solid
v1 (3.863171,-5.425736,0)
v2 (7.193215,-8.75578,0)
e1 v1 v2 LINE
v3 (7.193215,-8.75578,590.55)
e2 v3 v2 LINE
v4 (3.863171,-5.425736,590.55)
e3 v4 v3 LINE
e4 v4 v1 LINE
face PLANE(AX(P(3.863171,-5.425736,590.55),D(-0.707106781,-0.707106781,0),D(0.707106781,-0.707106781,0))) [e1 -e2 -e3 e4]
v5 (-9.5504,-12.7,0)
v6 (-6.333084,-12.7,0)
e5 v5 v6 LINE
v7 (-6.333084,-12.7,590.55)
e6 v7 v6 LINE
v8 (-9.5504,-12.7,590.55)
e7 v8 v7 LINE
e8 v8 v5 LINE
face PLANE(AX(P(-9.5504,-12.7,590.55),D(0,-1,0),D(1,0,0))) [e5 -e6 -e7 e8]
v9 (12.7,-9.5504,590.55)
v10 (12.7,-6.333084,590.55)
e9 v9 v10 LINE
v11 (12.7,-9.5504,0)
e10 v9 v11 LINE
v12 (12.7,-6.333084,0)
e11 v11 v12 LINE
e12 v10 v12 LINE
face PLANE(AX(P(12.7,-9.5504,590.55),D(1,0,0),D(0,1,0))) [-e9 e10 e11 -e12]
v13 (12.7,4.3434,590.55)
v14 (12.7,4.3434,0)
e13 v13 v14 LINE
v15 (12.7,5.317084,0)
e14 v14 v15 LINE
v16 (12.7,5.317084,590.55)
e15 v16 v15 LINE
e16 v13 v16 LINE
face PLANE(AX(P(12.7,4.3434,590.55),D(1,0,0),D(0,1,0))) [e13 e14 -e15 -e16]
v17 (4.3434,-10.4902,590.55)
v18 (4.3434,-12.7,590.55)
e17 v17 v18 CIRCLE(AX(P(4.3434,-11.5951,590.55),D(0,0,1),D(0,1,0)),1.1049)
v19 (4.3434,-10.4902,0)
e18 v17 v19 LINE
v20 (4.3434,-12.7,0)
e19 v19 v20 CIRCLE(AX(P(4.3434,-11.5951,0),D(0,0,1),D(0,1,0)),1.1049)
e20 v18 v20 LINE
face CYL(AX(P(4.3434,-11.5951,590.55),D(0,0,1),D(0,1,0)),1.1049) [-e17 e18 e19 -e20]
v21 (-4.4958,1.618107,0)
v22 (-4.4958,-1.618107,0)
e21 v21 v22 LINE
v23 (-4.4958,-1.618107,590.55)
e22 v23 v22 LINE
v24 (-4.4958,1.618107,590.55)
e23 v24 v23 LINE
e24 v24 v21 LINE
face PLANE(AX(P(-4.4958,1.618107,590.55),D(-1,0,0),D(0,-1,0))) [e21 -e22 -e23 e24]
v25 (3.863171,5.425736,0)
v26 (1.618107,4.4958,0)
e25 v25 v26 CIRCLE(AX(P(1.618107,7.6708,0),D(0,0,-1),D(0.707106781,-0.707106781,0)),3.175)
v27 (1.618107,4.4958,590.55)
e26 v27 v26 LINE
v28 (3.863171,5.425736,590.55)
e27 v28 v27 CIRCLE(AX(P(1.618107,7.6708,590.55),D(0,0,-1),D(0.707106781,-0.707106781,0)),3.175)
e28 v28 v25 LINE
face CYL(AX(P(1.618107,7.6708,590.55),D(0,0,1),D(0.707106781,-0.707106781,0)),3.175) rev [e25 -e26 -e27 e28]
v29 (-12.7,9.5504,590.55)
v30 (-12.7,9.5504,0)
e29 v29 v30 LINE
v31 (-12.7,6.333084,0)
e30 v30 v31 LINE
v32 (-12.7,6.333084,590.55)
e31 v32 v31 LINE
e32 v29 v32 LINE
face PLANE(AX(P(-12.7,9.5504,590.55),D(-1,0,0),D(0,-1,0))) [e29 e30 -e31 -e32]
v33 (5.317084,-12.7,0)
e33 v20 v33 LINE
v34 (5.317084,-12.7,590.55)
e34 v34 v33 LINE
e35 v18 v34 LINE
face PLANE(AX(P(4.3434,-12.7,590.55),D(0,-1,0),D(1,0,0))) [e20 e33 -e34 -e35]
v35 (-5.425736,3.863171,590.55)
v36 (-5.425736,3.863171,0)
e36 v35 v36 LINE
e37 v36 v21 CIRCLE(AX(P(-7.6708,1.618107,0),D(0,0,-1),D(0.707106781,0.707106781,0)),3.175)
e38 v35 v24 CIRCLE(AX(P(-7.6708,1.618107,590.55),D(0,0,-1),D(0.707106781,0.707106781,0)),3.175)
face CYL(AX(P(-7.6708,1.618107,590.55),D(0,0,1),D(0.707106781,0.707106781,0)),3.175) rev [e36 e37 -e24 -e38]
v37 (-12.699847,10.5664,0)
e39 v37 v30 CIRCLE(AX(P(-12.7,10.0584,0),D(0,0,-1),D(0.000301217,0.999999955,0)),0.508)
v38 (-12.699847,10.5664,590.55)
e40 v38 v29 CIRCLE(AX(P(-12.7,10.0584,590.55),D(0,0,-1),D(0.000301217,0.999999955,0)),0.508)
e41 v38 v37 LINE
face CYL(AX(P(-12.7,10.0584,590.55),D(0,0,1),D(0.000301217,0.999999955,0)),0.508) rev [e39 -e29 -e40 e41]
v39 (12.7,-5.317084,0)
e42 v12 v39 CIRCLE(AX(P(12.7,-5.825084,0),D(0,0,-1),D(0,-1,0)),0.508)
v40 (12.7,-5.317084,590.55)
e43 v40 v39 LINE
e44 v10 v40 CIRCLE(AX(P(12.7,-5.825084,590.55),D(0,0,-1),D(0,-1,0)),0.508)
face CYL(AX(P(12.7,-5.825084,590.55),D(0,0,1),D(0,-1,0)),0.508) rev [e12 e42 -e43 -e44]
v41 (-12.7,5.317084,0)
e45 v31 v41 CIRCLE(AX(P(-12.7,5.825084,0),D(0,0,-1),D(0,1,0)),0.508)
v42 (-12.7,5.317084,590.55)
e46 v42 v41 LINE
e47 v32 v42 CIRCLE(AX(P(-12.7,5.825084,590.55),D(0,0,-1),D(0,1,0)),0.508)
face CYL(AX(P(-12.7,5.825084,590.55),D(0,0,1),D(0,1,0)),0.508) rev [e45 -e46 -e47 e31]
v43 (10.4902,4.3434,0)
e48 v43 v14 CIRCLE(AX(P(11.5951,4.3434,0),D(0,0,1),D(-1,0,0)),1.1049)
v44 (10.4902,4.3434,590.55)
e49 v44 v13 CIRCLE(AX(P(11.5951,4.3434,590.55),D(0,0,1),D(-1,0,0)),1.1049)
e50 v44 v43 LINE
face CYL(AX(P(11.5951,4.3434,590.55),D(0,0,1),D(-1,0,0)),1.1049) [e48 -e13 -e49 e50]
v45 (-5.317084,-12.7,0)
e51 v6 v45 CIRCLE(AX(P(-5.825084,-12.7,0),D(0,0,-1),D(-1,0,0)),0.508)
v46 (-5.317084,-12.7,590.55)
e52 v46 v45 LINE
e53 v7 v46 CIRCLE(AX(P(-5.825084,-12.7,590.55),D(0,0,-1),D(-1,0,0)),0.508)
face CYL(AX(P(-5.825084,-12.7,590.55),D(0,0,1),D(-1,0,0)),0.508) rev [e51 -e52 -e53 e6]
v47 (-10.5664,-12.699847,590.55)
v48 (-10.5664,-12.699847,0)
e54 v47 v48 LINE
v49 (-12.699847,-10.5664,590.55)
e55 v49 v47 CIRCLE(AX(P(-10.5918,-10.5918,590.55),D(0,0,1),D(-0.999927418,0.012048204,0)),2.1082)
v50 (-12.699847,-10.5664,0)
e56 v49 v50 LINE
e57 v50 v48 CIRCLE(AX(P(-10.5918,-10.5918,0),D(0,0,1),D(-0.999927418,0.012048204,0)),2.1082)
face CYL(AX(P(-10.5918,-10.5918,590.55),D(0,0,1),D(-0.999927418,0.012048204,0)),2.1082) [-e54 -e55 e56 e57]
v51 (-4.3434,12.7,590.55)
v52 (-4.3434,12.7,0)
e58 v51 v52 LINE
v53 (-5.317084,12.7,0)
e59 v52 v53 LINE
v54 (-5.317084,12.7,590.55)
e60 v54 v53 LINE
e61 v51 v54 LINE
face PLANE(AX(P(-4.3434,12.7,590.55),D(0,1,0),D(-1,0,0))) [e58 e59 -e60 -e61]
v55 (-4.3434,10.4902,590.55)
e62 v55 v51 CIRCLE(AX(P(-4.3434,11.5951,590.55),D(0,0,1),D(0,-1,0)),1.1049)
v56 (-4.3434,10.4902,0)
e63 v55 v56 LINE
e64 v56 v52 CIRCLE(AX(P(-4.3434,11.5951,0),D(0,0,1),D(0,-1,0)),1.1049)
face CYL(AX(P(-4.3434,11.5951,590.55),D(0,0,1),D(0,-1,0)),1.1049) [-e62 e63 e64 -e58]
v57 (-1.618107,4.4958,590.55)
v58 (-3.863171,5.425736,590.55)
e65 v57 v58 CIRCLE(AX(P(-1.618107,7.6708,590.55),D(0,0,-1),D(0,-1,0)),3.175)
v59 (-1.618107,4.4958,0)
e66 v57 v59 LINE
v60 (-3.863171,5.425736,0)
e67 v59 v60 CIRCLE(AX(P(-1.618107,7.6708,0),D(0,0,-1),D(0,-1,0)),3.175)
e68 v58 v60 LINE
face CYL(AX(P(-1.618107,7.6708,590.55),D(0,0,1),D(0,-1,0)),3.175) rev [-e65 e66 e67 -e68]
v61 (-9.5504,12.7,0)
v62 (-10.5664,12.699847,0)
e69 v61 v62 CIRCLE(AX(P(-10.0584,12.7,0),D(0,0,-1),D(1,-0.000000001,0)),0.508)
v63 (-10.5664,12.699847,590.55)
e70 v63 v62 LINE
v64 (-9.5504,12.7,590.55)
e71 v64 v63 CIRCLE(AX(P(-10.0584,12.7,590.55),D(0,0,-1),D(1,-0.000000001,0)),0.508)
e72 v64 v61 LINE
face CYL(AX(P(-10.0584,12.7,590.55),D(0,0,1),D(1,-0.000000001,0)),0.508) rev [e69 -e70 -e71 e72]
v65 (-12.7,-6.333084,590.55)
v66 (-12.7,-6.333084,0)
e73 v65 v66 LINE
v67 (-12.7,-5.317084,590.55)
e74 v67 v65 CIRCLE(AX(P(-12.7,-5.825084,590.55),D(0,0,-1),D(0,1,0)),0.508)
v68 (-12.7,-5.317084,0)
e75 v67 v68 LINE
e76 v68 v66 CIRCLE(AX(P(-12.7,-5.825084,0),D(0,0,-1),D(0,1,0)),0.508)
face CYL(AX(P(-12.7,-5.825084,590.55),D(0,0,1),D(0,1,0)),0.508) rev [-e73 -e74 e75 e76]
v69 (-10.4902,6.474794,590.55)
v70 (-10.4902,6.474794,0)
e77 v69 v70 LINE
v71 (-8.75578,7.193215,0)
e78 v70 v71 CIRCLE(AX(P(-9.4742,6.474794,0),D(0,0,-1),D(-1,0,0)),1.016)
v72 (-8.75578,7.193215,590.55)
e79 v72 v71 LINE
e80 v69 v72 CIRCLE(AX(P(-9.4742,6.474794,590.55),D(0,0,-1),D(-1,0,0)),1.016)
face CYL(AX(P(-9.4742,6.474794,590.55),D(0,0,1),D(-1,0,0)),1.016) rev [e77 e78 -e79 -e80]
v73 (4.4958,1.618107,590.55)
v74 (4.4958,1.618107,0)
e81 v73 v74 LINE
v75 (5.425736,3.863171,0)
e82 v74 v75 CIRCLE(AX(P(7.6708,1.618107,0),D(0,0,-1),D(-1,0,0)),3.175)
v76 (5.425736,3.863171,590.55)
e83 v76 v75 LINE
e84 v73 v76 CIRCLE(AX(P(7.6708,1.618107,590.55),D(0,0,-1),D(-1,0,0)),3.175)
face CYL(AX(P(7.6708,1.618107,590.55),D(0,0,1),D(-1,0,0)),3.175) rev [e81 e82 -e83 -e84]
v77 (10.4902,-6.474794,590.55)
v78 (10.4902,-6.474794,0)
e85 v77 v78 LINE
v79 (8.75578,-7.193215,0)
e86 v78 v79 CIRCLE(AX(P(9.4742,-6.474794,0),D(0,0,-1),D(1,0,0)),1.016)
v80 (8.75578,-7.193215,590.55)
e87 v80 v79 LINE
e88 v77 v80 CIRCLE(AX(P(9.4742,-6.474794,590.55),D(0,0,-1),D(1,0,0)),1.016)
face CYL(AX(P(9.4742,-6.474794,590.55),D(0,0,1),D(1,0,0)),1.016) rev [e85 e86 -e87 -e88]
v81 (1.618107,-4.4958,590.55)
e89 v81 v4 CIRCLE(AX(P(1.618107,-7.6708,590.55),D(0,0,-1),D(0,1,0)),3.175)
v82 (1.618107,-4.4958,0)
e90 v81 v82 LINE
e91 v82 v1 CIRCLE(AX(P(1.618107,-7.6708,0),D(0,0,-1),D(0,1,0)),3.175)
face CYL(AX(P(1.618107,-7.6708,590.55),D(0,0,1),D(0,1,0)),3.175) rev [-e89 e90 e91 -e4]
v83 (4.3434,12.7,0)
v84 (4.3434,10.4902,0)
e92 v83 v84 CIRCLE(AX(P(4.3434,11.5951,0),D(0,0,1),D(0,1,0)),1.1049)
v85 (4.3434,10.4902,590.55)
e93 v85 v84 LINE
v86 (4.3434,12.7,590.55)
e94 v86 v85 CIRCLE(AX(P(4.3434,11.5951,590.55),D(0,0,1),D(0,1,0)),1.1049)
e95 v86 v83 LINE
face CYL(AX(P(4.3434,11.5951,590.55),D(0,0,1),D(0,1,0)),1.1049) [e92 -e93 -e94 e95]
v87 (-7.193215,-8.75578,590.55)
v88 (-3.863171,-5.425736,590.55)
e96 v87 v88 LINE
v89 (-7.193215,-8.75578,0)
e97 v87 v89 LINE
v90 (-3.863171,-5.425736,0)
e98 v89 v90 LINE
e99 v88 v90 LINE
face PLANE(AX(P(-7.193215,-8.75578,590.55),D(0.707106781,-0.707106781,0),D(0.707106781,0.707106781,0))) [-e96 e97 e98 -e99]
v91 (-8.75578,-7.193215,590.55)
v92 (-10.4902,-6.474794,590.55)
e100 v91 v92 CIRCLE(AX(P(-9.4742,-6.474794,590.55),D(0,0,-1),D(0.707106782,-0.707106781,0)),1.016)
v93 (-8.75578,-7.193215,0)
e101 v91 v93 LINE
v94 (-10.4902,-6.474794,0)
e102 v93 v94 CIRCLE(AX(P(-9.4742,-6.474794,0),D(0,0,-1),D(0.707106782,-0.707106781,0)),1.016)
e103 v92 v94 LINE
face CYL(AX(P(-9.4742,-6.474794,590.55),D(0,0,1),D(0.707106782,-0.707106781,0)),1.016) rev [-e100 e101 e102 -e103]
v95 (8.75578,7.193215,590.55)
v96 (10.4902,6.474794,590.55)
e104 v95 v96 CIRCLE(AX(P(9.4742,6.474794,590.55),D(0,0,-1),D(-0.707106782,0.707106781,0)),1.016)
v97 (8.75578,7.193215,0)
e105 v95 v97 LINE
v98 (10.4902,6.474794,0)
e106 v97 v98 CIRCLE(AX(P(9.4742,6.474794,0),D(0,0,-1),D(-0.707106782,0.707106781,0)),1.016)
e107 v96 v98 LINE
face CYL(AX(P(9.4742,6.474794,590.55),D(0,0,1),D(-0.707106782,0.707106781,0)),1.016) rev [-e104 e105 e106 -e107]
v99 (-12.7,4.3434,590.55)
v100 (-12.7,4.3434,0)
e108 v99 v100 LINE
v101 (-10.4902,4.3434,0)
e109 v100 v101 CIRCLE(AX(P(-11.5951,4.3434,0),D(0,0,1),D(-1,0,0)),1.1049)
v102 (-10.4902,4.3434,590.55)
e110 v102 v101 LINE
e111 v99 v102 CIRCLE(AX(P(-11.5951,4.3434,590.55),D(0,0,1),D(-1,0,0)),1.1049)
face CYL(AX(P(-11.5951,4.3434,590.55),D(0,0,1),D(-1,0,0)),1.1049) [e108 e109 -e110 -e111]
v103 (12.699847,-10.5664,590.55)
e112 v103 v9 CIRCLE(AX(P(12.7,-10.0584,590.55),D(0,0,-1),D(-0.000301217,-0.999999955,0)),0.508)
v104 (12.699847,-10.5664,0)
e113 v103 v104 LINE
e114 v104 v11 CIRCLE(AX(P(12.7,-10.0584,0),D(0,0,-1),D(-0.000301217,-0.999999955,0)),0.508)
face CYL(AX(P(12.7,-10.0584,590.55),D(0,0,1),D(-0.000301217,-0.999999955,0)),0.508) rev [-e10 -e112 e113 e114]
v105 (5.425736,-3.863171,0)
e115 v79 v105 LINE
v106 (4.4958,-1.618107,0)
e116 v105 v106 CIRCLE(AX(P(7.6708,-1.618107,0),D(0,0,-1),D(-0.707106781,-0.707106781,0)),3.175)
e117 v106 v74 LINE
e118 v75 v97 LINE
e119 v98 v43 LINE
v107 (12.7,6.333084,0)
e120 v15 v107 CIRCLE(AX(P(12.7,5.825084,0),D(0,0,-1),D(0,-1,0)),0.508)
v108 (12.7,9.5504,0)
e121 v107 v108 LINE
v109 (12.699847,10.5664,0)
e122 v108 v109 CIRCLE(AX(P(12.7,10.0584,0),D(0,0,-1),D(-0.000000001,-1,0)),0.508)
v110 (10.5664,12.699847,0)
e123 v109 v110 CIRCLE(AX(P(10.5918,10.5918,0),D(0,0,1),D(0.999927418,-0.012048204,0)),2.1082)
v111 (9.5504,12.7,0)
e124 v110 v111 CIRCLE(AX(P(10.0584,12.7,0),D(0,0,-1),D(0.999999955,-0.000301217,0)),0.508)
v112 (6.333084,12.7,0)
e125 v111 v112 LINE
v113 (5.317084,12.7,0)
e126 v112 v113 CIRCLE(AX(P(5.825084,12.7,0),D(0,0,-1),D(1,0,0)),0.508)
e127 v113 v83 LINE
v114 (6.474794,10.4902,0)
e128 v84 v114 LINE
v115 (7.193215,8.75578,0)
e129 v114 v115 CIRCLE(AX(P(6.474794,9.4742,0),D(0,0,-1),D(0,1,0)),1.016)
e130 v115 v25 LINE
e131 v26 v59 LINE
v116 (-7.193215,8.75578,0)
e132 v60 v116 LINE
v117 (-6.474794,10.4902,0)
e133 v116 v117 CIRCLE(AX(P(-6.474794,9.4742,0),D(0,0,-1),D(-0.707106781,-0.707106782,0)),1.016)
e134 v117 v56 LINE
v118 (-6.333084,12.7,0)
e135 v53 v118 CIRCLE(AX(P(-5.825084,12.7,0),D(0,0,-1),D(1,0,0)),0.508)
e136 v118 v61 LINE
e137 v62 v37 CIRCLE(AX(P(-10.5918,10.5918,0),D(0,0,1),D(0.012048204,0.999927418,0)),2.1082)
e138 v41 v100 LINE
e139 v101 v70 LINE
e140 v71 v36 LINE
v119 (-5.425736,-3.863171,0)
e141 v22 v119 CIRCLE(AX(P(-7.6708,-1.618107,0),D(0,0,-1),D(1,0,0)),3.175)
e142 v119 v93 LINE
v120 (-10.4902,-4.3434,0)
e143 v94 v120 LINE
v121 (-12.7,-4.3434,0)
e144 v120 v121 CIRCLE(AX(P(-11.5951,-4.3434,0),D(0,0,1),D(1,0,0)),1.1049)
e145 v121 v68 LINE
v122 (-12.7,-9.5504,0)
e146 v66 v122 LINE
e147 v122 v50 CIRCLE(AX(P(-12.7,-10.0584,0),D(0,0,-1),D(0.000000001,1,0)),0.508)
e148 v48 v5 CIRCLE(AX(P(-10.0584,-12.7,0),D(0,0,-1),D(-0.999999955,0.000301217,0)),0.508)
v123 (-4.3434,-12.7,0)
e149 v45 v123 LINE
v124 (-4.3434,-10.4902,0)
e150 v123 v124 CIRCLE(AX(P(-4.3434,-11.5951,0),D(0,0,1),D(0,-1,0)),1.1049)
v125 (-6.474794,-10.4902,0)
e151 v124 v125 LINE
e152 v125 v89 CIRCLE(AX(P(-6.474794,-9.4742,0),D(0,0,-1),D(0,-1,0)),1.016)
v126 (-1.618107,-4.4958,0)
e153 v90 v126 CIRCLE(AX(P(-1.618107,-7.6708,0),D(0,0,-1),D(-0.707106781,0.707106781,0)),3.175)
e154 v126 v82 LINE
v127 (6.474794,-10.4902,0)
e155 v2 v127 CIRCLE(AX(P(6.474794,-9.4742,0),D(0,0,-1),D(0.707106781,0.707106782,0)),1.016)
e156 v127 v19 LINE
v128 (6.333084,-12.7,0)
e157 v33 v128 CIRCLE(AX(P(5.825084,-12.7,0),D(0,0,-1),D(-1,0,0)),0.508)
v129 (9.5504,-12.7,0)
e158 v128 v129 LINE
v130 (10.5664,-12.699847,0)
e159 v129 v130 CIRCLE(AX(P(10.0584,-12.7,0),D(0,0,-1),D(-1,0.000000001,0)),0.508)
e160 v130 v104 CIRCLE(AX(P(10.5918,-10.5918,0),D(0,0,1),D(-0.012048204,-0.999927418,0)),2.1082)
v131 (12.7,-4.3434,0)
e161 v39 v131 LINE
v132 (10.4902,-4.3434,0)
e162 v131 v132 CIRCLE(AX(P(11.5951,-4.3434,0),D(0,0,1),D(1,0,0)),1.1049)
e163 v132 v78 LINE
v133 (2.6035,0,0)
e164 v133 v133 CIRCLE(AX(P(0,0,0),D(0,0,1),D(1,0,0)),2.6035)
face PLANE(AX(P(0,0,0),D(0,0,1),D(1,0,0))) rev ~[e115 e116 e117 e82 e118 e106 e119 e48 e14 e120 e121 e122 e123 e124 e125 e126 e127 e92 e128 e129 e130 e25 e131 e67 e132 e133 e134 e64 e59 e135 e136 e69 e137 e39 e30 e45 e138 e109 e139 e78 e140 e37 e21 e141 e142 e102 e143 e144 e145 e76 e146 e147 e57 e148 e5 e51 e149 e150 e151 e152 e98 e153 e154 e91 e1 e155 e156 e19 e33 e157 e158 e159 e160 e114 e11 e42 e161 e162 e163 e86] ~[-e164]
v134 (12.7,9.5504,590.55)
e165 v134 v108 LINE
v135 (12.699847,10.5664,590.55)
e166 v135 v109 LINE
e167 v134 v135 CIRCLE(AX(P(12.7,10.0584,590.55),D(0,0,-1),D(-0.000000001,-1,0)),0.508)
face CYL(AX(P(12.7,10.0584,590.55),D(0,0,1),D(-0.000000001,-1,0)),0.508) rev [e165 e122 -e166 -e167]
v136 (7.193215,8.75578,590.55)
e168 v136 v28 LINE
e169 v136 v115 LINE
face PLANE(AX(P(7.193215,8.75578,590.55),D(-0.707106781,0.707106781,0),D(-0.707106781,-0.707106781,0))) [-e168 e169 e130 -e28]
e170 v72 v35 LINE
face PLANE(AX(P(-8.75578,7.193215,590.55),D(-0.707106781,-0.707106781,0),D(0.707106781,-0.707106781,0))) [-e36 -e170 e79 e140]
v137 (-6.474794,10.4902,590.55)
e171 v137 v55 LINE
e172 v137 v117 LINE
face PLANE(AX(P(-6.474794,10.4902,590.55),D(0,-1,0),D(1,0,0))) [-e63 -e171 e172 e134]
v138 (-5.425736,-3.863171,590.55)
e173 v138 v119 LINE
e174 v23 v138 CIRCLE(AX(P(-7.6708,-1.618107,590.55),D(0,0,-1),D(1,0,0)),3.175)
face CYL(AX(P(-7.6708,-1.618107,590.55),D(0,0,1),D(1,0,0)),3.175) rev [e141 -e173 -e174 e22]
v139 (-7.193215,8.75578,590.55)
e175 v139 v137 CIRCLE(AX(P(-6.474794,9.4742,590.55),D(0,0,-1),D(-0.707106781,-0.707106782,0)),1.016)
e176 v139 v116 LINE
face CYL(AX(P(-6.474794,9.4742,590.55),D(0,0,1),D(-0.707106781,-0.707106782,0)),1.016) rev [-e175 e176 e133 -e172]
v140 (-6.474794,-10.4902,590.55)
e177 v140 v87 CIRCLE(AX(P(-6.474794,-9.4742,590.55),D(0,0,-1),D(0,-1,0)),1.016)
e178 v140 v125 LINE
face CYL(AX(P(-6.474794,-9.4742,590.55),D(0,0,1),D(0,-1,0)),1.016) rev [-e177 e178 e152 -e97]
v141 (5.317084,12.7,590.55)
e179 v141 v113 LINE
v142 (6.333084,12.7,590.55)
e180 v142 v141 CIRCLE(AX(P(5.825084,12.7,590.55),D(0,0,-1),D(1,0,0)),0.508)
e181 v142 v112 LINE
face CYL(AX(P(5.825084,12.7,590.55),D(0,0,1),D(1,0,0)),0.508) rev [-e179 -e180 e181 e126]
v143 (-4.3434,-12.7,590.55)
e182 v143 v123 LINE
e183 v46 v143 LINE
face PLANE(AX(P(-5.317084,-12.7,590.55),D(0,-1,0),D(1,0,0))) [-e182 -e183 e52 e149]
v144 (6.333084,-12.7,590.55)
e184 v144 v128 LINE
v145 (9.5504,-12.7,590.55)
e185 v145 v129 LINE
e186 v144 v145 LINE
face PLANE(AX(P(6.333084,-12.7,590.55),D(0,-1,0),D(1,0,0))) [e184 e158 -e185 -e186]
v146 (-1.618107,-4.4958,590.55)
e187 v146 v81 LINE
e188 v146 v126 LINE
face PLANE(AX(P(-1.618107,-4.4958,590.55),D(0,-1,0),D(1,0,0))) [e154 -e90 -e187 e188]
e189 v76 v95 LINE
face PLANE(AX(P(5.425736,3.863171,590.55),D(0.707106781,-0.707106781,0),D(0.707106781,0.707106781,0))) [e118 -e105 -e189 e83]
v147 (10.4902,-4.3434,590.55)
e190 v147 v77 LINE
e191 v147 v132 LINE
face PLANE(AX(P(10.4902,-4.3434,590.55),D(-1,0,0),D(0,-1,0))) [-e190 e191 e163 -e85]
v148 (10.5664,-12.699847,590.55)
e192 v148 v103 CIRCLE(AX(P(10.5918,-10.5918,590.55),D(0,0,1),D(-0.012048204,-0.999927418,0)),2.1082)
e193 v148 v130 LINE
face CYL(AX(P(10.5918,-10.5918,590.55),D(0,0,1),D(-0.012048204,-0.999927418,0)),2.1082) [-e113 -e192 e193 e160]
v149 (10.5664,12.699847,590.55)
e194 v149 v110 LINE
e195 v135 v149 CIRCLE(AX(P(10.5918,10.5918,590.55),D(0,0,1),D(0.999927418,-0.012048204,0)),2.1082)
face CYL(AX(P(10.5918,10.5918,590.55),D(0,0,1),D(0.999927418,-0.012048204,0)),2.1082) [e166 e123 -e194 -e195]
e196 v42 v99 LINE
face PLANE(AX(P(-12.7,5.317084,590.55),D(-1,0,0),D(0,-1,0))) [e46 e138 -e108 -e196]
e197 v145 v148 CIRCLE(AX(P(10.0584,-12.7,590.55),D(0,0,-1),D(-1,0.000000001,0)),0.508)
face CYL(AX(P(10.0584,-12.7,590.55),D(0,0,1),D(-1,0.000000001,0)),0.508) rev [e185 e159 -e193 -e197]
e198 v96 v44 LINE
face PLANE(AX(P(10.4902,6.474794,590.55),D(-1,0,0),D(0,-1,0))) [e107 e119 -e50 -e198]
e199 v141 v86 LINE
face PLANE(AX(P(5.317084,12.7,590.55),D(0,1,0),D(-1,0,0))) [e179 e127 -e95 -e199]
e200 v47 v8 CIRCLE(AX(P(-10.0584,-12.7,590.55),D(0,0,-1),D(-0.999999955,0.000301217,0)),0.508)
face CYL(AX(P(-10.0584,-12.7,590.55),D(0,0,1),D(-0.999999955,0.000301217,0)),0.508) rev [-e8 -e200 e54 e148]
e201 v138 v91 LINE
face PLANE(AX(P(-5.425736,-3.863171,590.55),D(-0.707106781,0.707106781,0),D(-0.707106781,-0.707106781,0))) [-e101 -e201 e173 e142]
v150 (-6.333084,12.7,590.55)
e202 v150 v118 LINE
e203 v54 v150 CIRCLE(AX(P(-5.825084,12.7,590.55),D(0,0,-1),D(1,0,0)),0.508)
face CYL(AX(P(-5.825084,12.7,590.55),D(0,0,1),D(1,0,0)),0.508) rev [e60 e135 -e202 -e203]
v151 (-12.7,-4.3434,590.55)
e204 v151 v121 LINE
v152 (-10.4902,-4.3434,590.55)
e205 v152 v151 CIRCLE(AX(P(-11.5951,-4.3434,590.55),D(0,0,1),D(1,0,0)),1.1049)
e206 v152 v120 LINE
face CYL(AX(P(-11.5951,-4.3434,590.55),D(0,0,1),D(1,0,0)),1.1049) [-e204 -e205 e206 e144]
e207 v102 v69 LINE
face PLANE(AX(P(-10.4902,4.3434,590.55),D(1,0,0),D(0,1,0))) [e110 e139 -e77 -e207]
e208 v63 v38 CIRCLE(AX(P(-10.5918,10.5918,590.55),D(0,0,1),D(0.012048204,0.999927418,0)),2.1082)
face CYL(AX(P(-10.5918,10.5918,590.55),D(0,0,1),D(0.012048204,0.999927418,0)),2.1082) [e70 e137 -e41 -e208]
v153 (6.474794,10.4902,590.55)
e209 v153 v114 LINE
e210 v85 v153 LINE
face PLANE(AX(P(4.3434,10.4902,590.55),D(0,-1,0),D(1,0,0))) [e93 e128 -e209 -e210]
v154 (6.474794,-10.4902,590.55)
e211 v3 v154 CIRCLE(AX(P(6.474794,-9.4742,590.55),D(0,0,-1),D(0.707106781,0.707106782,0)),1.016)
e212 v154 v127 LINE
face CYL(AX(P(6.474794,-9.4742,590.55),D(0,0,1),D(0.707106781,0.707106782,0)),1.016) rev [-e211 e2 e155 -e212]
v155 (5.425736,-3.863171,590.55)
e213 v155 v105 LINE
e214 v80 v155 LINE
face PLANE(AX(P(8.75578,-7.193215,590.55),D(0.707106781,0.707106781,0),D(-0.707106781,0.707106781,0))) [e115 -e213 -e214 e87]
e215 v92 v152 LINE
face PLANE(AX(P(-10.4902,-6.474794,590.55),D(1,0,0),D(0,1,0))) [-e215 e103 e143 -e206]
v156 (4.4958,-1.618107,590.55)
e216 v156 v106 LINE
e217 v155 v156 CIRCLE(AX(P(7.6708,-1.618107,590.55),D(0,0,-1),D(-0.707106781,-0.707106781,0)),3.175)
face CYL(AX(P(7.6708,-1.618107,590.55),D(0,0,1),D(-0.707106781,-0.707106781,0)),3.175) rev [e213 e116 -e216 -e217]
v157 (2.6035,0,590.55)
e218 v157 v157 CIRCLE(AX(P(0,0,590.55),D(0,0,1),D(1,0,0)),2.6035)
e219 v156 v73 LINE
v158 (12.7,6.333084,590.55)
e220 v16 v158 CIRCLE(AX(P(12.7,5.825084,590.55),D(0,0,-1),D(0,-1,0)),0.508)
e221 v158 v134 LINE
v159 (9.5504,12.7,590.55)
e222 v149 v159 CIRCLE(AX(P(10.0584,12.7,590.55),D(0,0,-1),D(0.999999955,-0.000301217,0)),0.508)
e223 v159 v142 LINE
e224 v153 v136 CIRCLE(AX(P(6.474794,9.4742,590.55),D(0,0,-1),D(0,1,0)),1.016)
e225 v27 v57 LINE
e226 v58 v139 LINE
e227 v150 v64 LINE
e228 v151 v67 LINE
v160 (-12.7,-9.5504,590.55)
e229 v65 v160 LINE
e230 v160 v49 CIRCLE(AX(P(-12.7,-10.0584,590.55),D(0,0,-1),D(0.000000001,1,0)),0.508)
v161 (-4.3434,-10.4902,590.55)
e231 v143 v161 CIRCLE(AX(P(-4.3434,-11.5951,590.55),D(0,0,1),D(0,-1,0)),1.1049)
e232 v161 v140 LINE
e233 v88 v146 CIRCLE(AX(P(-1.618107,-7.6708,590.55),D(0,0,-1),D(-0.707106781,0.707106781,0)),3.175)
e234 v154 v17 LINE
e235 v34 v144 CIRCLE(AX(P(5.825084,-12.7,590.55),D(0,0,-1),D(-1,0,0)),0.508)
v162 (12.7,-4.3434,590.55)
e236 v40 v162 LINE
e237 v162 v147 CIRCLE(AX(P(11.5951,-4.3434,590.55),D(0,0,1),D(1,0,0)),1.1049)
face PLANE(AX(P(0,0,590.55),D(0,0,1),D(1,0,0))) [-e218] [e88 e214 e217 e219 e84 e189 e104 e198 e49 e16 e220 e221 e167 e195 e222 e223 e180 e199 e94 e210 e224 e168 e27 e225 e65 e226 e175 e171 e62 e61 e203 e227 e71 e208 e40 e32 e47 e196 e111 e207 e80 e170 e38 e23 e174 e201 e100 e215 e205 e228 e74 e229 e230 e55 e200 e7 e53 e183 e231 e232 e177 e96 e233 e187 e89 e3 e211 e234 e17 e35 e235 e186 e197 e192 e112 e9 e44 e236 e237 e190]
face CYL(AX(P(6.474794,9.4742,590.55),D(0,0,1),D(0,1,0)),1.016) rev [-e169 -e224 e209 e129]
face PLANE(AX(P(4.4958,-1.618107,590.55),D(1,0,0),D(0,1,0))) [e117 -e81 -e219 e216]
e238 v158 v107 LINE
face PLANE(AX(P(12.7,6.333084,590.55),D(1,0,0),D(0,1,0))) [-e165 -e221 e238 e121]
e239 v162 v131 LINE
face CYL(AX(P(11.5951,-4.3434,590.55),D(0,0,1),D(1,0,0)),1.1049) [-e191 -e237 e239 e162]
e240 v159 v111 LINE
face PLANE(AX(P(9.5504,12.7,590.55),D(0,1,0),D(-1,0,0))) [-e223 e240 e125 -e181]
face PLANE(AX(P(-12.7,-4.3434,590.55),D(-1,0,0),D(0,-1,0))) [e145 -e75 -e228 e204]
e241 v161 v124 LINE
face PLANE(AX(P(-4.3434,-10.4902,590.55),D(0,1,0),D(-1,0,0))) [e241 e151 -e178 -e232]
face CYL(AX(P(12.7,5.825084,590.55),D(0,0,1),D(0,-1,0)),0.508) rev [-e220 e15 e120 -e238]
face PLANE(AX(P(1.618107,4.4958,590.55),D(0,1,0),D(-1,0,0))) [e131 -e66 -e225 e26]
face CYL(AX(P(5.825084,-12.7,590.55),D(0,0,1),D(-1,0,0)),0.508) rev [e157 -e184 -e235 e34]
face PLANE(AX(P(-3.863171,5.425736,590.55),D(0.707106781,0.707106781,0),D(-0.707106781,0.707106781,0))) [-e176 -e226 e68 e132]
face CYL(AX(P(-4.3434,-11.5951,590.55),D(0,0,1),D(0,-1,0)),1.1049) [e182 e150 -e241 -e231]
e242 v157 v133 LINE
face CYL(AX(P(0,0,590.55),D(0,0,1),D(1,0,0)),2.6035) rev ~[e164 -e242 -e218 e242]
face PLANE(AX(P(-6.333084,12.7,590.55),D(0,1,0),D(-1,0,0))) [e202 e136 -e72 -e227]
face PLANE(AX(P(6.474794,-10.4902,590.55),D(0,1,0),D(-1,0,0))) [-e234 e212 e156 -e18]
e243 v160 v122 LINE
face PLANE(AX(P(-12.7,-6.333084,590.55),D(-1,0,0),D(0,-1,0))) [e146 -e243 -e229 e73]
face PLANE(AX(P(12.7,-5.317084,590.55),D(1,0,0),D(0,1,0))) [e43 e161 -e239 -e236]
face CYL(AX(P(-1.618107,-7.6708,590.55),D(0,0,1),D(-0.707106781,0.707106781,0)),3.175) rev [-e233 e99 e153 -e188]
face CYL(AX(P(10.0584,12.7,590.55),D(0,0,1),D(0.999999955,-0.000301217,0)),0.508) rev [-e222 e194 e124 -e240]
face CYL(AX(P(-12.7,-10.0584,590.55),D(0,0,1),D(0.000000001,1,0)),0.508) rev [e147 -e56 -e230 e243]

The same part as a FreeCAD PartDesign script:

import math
import FreeCAD as App
import Part
import Sketcher
Q = App.Units.Quantity

doc = App.newDocument("Part")
body = doc.addObject("PartDesign::Body", "Body")

# Sketch on XY plane
sketch1 = body.newObject("Sketcher::SketchObject", "Sketch")
sketch1.AttachmentSupport = (doc.getObject("XY_Plane"), [""])
sketch1.MapMode = "FlatFace"
sketch1.AttachmentOffset = App.Placement(App.Vector(0, 0, 23.25 * 25.4), App.Rotation())
sketch1.addGeometry(Part.LineSegment(App.Vector(-12.7, -6.3, 0), App.Vector(-12.7, -9.6, 0)), False)
sketch1.addGeometry(Part.ArcOfCircle(Part.Circle(App.Vector(-12.7, -10.1, 0), App.Vector(0, 0, 1), 0.5), math.radians(-90), math.radians(90)), False)
sketch1.addGeometry(Part.ArcOfCircle(Part.Circle(App.Vector(-10.6, -10.6, 0), App.Vector(0, 0, 1), 2.1), math.radians(179), math.radians(271)), False)
sketch1.addGeometry(Part.ArcOfCircle(Part.Circle(App.Vector(-10.1, -12.7, 0), App.Vector(0, 0, 1), 0.5), math.radians(0), math.radians(180)), False)
sketch1.addGeometry(Part.LineSegment(App.Vector(-9.6, -12.7, 0), App.Vector(-6.3, -12.7, 0)), False)
sketch1.addGeometry(Part.ArcOfCircle(Part.Circle(App.Vector(-5.8, -12.7, 0), App.Vector(0, 0, 1), 0.5), math.radians(0), math.radians(180)), False)
sketch1.addGeometry(Part.LineSegment(App.Vector(-5.3, -12.7, 0), App.Vector(-4.3, -12.7, 0)), False)
sketch1.addGeometry(Part.ArcOfCircle(Part.Circle(App.Vector(-4.3, -11.6, 0), App.Vector(0, 0, 1), 1.1), math.radians(-90), math.radians(90)), False)
sketch1.addGeometry(Part.LineSegment(App.Vector(-4.3, -10.5, 0), App.Vector(-6.5, -10.5, 0)), False)
sketch1.addGeometry(Part.ArcOfCircle(Part.Circle(App.Vector(-6.5, -9.5, 0), App.Vector(0, 0, 1), 1), math.radians(135), math.radians(270)), False)
sketch1.addGeometry(Part.LineSegment(App.Vector(-7.2, -8.8, 0), App.Vector(-3.9, -5.4, 0)), False)
sketch1.addGeometry(Part.ArcOfCircle(Part.Circle(App.Vector(-1.6, -7.7, 0), App.Vector(0, 0, 1), 3.2), math.radians(90), math.radians(135)), False)
sketch1.addGeometry(Part.LineSegment(App.Vector(-1.6, -4.5, 0), App.Vector(1.6, -4.5, 0)), False)
sketch1.addGeometry(Part.ArcOfCircle(Part.Circle(App.Vector(1.6, -7.7, 0), App.Vector(0, 0, 1), 3.2), math.radians(45), math.radians(90)), False)
sketch1.addGeometry(Part.LineSegment(App.Vector(3.9, -5.4, 0), App.Vector(7.2, -8.8, 0)), False)
sketch1.addGeometry(Part.ArcOfCircle(Part.Circle(App.Vector(6.5, -9.5, 0), App.Vector(0, 0, 1), 1), math.radians(-90), math.radians(45)), False)
sketch1.addGeometry(Part.LineSegment(App.Vector(6.5, -10.5, 0), App.Vector(4.3, -10.5, 0)), False)
sketch1.addGeometry(Part.ArcOfCircle(Part.Circle(App.Vector(4.3, -11.6, 0), App.Vector(0, 0, 1), 1.1), math.radians(90), math.radians(270)), False)
sketch1.addGeometry(Part.LineSegment(App.Vector(4.3, -12.7, 0), App.Vector(5.3, -12.7, 0)), False)
sketch1.addGeometry(Part.ArcOfCircle(Part.Circle(App.Vector(5.8, -12.7, 0), App.Vector(0, 0, 1), 0.5), math.radians(0), math.radians(180)), False)
sketch1.addGeometry(Part.LineSegment(App.Vector(6.3, -12.7, 0), App.Vector(9.6, -12.7, 0)), False)
sketch1.addGeometry(Part.ArcOfCircle(Part.Circle(App.Vector(10.1, -12.7, 0), App.Vector(0, 0, 1), 0.5), math.radians(0), math.radians(180)), False)
sketch1.addGeometry(Part.ArcOfCircle(Part.Circle(App.Vector(10.6, -10.6, 0), App.Vector(0, 0, 1), 2.1), math.radians(-91), math.radians(1)), False)
sketch1.addGeometry(Part.ArcOfCircle(Part.Circle(App.Vector(12.7, -10.1, 0), App.Vector(0, 0, 1), 0.5), math.radians(90), math.radians(270)), False)
sketch1.addGeometry(Part.LineSegment(App.Vector(12.7, -9.6, 0), App.Vector(12.7, -6.3, 0)), False)
sketch1.addGeometry(Part.ArcOfCircle(Part.Circle(App.Vector(12.7, -5.8, 0), App.Vector(0, 0, 1), 0.5), math.radians(90), math.radians(270)), False)
sketch1.addGeometry(Part.LineSegment(App.Vector(12.7, -5.3, 0), App.Vector(12.7, -4.3, 0)), False)
sketch1.addGeometry(Part.ArcOfCircle(Part.Circle(App.Vector(11.6, -4.3, 0), App.Vector(0, 0, 1), 1.1), math.radians(0), math.radians(180)), False)
sketch1.addGeometry(Part.LineSegment(App.Vector(10.5, -4.3, 0), App.Vector(10.5, -6.5, 0)), False)
sketch1.addGeometry(Part.ArcOfCircle(Part.Circle(App.Vector(9.5, -6.5, 0), App.Vector(0, 0, 1), 1), math.radians(-135), math.radians(0)), False)
sketch1.addGeometry(Part.LineSegment(App.Vector(8.8, -7.2, 0), App.Vector(5.4, -3.9, 0)), False)
sketch1.addGeometry(Part.ArcOfCircle(Part.Circle(App.Vector(7.7, -1.6, 0), App.Vector(0, 0, 1), 3.2), math.radians(180), math.radians(225)), False)
sketch1.addGeometry(Part.LineSegment(App.Vector(4.5, -1.6, 0), App.Vector(4.5, 1.6, 0)), False)
sketch1.addGeometry(Part.ArcOfCircle(Part.Circle(App.Vector(7.7, 1.6, 0), App.Vector(0, 0, 1), 3.2), math.radians(135), math.radians(180)), False)
sketch1.addGeometry(Part.LineSegment(App.Vector(5.4, 3.9, 0), App.Vector(8.8, 7.2, 0)), False)
sketch1.addGeometry(Part.ArcOfCircle(Part.Circle(App.Vector(9.5, 6.5, 0), App.Vector(0, 0, 1), 1), math.radians(0), math.radians(135)), False)
sketch1.addGeometry(Part.LineSegment(App.Vector(10.5, 6.5, 0), App.Vector(10.5, 4.3, 0)), False)
sketch1.addGeometry(Part.ArcOfCircle(Part.Circle(App.Vector(11.6, 4.3, 0), App.Vector(0, 0, 1), 1.1), math.radians(180), math.radians(360)), False)
sketch1.addGeometry(Part.LineSegment(App.Vector(12.7, 4.3, 0), App.Vector(12.7, 5.3, 0)), False)
sketch1.addGeometry(Part.ArcOfCircle(Part.Circle(App.Vector(12.7, 5.8, 0), App.Vector(0, 0, 1), 0.5), math.radians(90), math.radians(270)), False)
sketch1.addGeometry(Part.LineSegment(App.Vector(12.7, 6.3, 0), App.Vector(12.7, 9.6, 0)), False)
sketch1.addGeometry(Part.ArcOfCircle(Part.Circle(App.Vector(12.7, 10.1, 0), App.Vector(0, 0, 1), 0.5), math.radians(90), math.radians(270)), False)
sketch1.addGeometry(Part.ArcOfCircle(Part.Circle(App.Vector(10.6, 10.6, 0), App.Vector(0, 0, 1), 2.1), math.radians(-1), math.radians(91)), False)
sketch1.addGeometry(Part.ArcOfCircle(Part.Circle(App.Vector(10.1, 12.7, 0), App.Vector(0, 0, 1), 0.5), math.radians(180), math.radians(360)), False)
sketch1.addGeometry(Part.LineSegment(App.Vector(9.6, 12.7, 0), App.Vector(6.3, 12.7, 0)), False)
sketch1.addGeometry(Part.ArcOfCircle(Part.Circle(App.Vector(5.8, 12.7, 0), App.Vector(0, 0, 1), 0.5), math.radians(180), math.radians(360)), False)
sketch1.addGeometry(Part.LineSegment(App.Vector(5.3, 12.7, 0), App.Vector(4.3, 12.7, 0)), False)
sketch1.addGeometry(Part.ArcOfCircle(Part.Circle(App.Vector(4.3, 11.6, 0), App.Vector(0, 0, 1), 1.1), math.radians(90), math.radians(270)), False)
sketch1.addGeometry(Part.LineSegment(App.Vector(4.3, 10.5, 0), App.Vector(6.5, 10.5, 0)), False)
sketch1.addGeometry(Part.ArcOfCircle(Part.Circle(App.Vector(6.5, 9.5, 0), App.Vector(0, 0, 1), 1), math.radians(-45), math.radians(90)), False)
sketch1.addGeometry(Part.LineSegment(App.Vector(7.2, 8.8, 0), App.Vector(3.9, 5.4, 0)), False)
sketch1.addGeometry(Part.ArcOfCircle(Part.Circle(App.Vector(1.6, 7.7, 0), App.Vector(0, 0, 1), 3.2), math.radians(-90), math.radians(-45)), False)
sketch1.addGeometry(Part.LineSegment(App.Vector(1.6, 4.5, 0), App.Vector(-1.6, 4.5, 0)), False)
sketch1.addGeometry(Part.ArcOfCircle(Part.Circle(App.Vector(-1.6, 7.7, 0), App.Vector(0, 0, 1), 3.2), math.radians(-135), math.radians(-90)), False)
sketch1.addGeometry(Part.LineSegment(App.Vector(-3.9, 5.4, 0), App.Vector(-7.2, 8.8, 0)), False)
sketch1.addGeometry(Part.ArcOfCircle(Part.Circle(App.Vector(-6.5, 9.5, 0), App.Vector(0, 0, 1), 1), math.radians(90), math.radians(225)), False)
sketch1.addGeometry(Part.LineSegment(App.Vector(-6.5, 10.5, 0), App.Vector(-4.3, 10.5, 0)), False)
sketch1.addGeometry(Part.ArcOfCircle(Part.Circle(App.Vector(-4.3, 11.6, 0), App.Vector(0, 0, 1), 1.1), math.radians(-90), math.radians(90)), False)
sketch1.addGeometry(Part.LineSegment(App.Vector(-4.3, 12.7, 0), App.Vector(-5.3, 12.7, 0)), False)
sketch1.addGeometry(Part.ArcOfCircle(Part.Circle(App.Vector(-5.8, 12.7, 0), App.Vector(0, 0, 1), 0.5), math.radians(180), math.radians(360)), False)
sketch1.addGeometry(Part.LineSegment(App.Vector(-6.3, 12.7, 0), App.Vector(-9.6, 12.7, 0)), False)
sketch1.addGeometry(Part.ArcOfCircle(Part.Circle(App.Vector(-10.1, 12.7, 0), App.Vector(0, 0, 1), 0.5), math.radians(-180), math.radians(0)), False)
sketch1.addGeometry(Part.ArcOfCircle(Part.Circle(App.Vector(-10.6, 10.6, 0), App.Vector(0, 0, 1), 2.1), math.radians(89), math.radians(181)), False)
sketch1.addGeometry(Part.ArcOfCircle(Part.Circle(App.Vector(-12.7, 10.1, 0), App.Vector(0, 0, 1), 0.5), math.radians(-90), math.radians(90)), False)
sketch1.addGeometry(Part.LineSegment(App.Vector(-12.7, 9.6, 0), App.Vector(-12.7, 6.3, 0)), False)
sketch1.addGeometry(Part.ArcOfCircle(Part.Circle(App.Vector(-12.7, 5.8, 0), App.Vector(0, 0, 1), 0.5), math.radians(-90), math.radians(90)), False)
sketch1.addGeometry(Part.LineSegment(App.Vector(-12.7, 5.3, 0), App.Vector(-12.7, 4.3, 0)), False)
sketch1.addGeometry(Part.ArcOfCircle(Part.Circle(App.Vector(-11.6, 4.3, 0), App.Vector(0, 0, 1), 1.1), math.radians(180), math.radians(360)), False)
sketch1.addGeometry(Part.LineSegment(App.Vector(-10.5, 4.3, 0), App.Vector(-10.5, 6.5, 0)), False)
sketch1.addGeometry(Part.ArcOfCircle(Part.Circle(App.Vector(-9.5, 6.5, 0), App.Vector(0, 0, 1), 1), math.radians(45), math.radians(180)), False)
sketch1.addGeometry(Part.LineSegment(App.Vector(-8.8, 7.2, 0), App.Vector(-5.4, 3.9, 0)), False)
sketch1.addGeometry(Part.ArcOfCircle(Part.Circle(App.Vector(-7.7, 1.6, 0), App.Vector(0, 0, 1), 3.2), math.radians(0), math.radians(45)), False)
sketch1.addGeometry(Part.LineSegment(App.Vector(-4.5, 1.6, 0), App.Vector(-4.5, -1.6, 0)), False)
sketch1.addGeometry(Part.ArcOfCircle(Part.Circle(App.Vector(-7.7, -1.6, 0), App.Vector(0, 0, 1), 3.2), math.radians(-45), math.radians(0)), False)
sketch1.addGeometry(Part.LineSegment(App.Vector(-5.4, -3.9, 0), App.Vector(-8.8, -7.2, 0)), False)
sketch1.addGeometry(Part.ArcOfCircle(Part.Circle(App.Vector(-9.5, -6.5, 0), App.Vector(0, 0, 1), 1), math.radians(180), math.radians(315)), False)
sketch1.addGeometry(Part.LineSegment(App.Vector(-10.5, -6.5, 0), App.Vector(-10.5, -4.3, 0)), False)
sketch1.addGeometry(Part.ArcOfCircle(Part.Circle(App.Vector(-11.6, -4.3, 0), App.Vector(0, 0, 1), 1.1), math.radians(0), math.radians(180)), False)
sketch1.addGeometry(Part.LineSegment(App.Vector(-12.7, -4.3, 0), App.Vector(-12.7, -5.3, 0)), False)
sketch1.addGeometry(Part.ArcOfCircle(Part.Circle(App.Vector(-12.7, -5.8, 0), App.Vector(0, 0, 1), 0.5), math.radians(-90), math.radians(90)), False)
sketch1.addGeometry(Part.Circle(App.Vector(0, 0, 0), App.Vector(0, 0, 1), 2.6), False)
sketch1.addConstraint(Sketcher.Constraint("Coincident", 0, 2, 1, 2))
sketch1.addConstraint(Sketcher.Constraint("Coincident", 1, 1, 2, 1))
sketch1.addConstraint(Sketcher.Constraint("Coincident", 2, 2, 3, 2))
sketch1.addConstraint(Sketcher.Constraint("Coincident", 3, 1, 4, 1))
sketch1.addConstraint(Sketcher.Constraint("Coincident", 4, 2, 5, 2))
sketch1.addConstraint(Sketcher.Constraint("Coincident", 5, 1, 6, 1))
sketch1.addConstraint(Sketcher.Constraint("Tangent", 6, 2, 7, 1))
sketch1.addConstraint(Sketcher.Constraint("Tangent", 7, 2, 8, 1))
sketch1.addConstraint(Sketcher.Constraint("Tangent", 8, 2, 9, 2))
sketch1.addConstraint(Sketcher.Constraint("Tangent", 9, 1, 10, 1))
sketch1.addConstraint(Sketcher.Constraint("Tangent", 10, 2, 11, 2))
sketch1.addConstraint(Sketcher.Constraint("Tangent", 11, 1, 12, 1))
sketch1.addConstraint(Sketcher.Constraint("Tangent", 12, 2, 13, 2))
sketch1.addConstraint(Sketcher.Constraint("Tangent", 13, 1, 14, 1))
sketch1.addConstraint(Sketcher.Constraint("Tangent", 14, 2, 15, 2))
sketch1.addConstraint(Sketcher.Constraint("Tangent", 15, 1, 16, 1))
sketch1.addConstraint(Sketcher.Constraint("Tangent", 16, 2, 17, 1))
sketch1.addConstraint(Sketcher.Constraint("Tangent", 17, 2, 18, 1))
sketch1.addConstraint(Sketcher.Constraint("Coincident", 18, 2, 19, 2))
sketch1.addConstraint(Sketcher.Constraint("Coincident", 19, 1, 20, 1))
sketch1.addConstraint(Sketcher.Constraint("Coincident", 20, 2, 21, 2))
sketch1.addConstraint(Sketcher.Constraint("Coincident", 21, 1, 22, 1))
sketch1.addConstraint(Sketcher.Constraint("Coincident", 22, 2, 23, 2))
sketch1.addConstraint(Sketcher.Constraint("Coincident", 23, 1, 24, 1))
sketch1.addConstraint(Sketcher.Constraint("Coincident", 24, 2, 25, 2))
sketch1.addConstraint(Sketcher.Constraint("Coincident", 25, 1, 26, 1))
sketch1.addConstraint(Sketcher.Constraint("Tangent", 26, 2, 27, 1))
sketch1.addConstraint(Sketcher.Constraint("Tangent", 27, 2, 28, 1))
sketch1.addConstraint(Sketcher.Constraint("Tangent", 28, 2, 29, 2))
sketch1.addConstraint(Sketcher.Constraint("Tangent", 29, 1, 30, 1))
sketch1.addConstraint(Sketcher.Constraint("Tangent", 30, 2, 31, 2))
sketch1.addConstraint(Sketcher.Constraint("Tangent", 31, 1, 32, 1))
sketch1.addConstraint(Sketcher.Constraint("Tangent", 32, 2, 33, 2))
sketch1.addConstraint(Sketcher.Constraint("Tangent", 33, 1, 34, 1))
sketch1.addConstraint(Sketcher.Constraint("Tangent", 34, 2, 35, 2))
sketch1.addConstraint(Sketcher.Constraint("Tangent", 35, 1, 36, 1))
sketch1.addConstraint(Sketcher.Constraint("Tangent", 36, 2, 37, 1))
sketch1.addConstraint(Sketcher.Constraint("Tangent", 37, 2, 38, 1))
sketch1.addConstraint(Sketcher.Constraint("Coincident", 38, 2, 39, 2))
sketch1.addConstraint(Sketcher.Constraint("Coincident", 39, 1, 40, 1))
sketch1.addConstraint(Sketcher.Constraint("Coincident", 40, 2, 41, 2))
sketch1.addConstraint(Sketcher.Constraint("Coincident", 41, 1, 42, 1))
sketch1.addConstraint(Sketcher.Constraint("Coincident", 42, 2, 43, 2))
sketch1.addConstraint(Sketcher.Constraint("Coincident", 43, 1, 44, 1))
sketch1.addConstraint(Sketcher.Constraint("Coincident", 44, 2, 45, 2))
sketch1.addConstraint(Sketcher.Constraint("Coincident", 45, 1, 46, 1))
sketch1.addConstraint(Sketcher.Constraint("Tangent", 46, 2, 47, 1))
sketch1.addConstraint(Sketcher.Constraint("Tangent", 47, 2, 48, 1))
sketch1.addConstraint(Sketcher.Constraint("Tangent", 48, 2, 49, 2))
sketch1.addConstraint(Sketcher.Constraint("Tangent", 49, 1, 50, 1))
sketch1.addConstraint(Sketcher.Constraint("Tangent", 50, 2, 51, 2))
sketch1.addConstraint(Sketcher.Constraint("Tangent", 51, 1, 52, 1))
sketch1.addConstraint(Sketcher.Constraint("Tangent", 52, 2, 53, 2))
sketch1.addConstraint(Sketcher.Constraint("Tangent", 53, 1, 54, 1))
sketch1.addConstraint(Sketcher.Constraint("Tangent", 54, 2, 55, 2))
sketch1.addConstraint(Sketcher.Constraint("Tangent", 55, 1, 56, 1))
sketch1.addConstraint(Sketcher.Constraint("Tangent", 56, 2, 57, 1))
sketch1.addConstraint(Sketcher.Constraint("Tangent", 57, 2, 58, 1))
sketch1.addConstraint(Sketcher.Constraint("Coincident", 58, 2, 59, 2))
sketch1.addConstraint(Sketcher.Constraint("Coincident", 59, 1, 60, 1))
sketch1.addConstraint(Sketcher.Constraint("Coincident", 60, 2, 61, 2))
sketch1.addConstraint(Sketcher.Constraint("Coincident", 61, 1, 62, 1))
sketch1.addConstraint(Sketcher.Constraint("Coincident", 62, 2, 63, 2))
sketch1.addConstraint(Sketcher.Constraint("Coincident", 63, 1, 64, 1))
sketch1.addConstraint(Sketcher.Constraint("Coincident", 64, 2, 65, 2))
sketch1.addConstraint(Sketcher.Constraint("Coincident", 65, 1, 66, 1))
sketch1.addConstraint(Sketcher.Constraint("Tangent", 66, 2, 67, 1))
sketch1.addConstraint(Sketcher.Constraint("Tangent", 67, 2, 68, 1))
sketch1.addConstraint(Sketcher.Constraint("Tangent", 68, 2, 69, 2))
sketch1.addConstraint(Sketcher.Constraint("Tangent", 69, 1, 70, 1))
sketch1.addConstraint(Sketcher.Constraint("Tangent", 70, 2, 71, 2))
sketch1.addConstraint(Sketcher.Constraint("Tangent", 71, 1, 72, 1))
sketch1.addConstraint(Sketcher.Constraint("Tangent", 72, 2, 73, 2))
sketch1.addConstraint(Sketcher.Constraint("Tangent", 73, 1, 74, 1))
sketch1.addConstraint(Sketcher.Constraint("Tangent", 74, 2, 75, 2))
sketch1.addConstraint(Sketcher.Constraint("Tangent", 75, 1, 76, 1))
sketch1.addConstraint(Sketcher.Constraint("Tangent", 76, 2, 77, 1))
sketch1.addConstraint(Sketcher.Constraint("Tangent", 77, 2, 78, 1))
sketch1.addConstraint(Sketcher.Constraint("Coincident", 78, 2, 79, 2))
sketch1.addConstraint(Sketcher.Constraint("Coincident", 79, 1, 0, 1))
sketch1.addConstraint(Sketcher.Constraint("Vertical", 0))
sketch1.addConstraint(Sketcher.Constraint("Horizontal", 4))
sketch1.addConstraint(Sketcher.Constraint("Horizontal", 6))
sketch1.addConstraint(Sketcher.Constraint("Horizontal", 8))
sketch1.addConstraint(Sketcher.Constraint("Horizontal", 12))
sketch1.addConstraint(Sketcher.Constraint("Horizontal", 16))
sketch1.addConstraint(Sketcher.Constraint("Horizontal", 18))
sketch1.addConstraint(Sketcher.Constraint("Horizontal", 20))
sketch1.addConstraint(Sketcher.Constraint("Vertical", 24))
sketch1.addConstraint(Sketcher.Constraint("Vertical", 26))
sketch1.addConstraint(Sketcher.Constraint("Vertical", 28))
sketch1.addConstraint(Sketcher.Constraint("Vertical", 32))
sketch1.addConstraint(Sketcher.Constraint("Vertical", 36))
sketch1.addConstraint(Sketcher.Constraint("Vertical", 38))
sketch1.addConstraint(Sketcher.Constraint("Vertical", 40))
sketch1.addConstraint(Sketcher.Constraint("Horizontal", 44))
sketch1.addConstraint(Sketcher.Constraint("Horizontal", 46))
sketch1.addConstraint(Sketcher.Constraint("Horizontal", 48))
sketch1.addConstraint(Sketcher.Constraint("Horizontal", 52))
sketch1.addConstraint(Sketcher.Constraint("Horizontal", 56))
sketch1.addConstraint(Sketcher.Constraint("Horizontal", 58))
sketch1.addConstraint(Sketcher.Constraint("Horizontal", 60))
sketch1.addConstraint(Sketcher.Constraint("Vertical", 64))
sketch1.addConstraint(Sketcher.Constraint("Vertical", 66))
sketch1.addConstraint(Sketcher.Constraint("Vertical", 68))
sketch1.addConstraint(Sketcher.Constraint("Vertical", 72))
sketch1.addConstraint(Sketcher.Constraint("Vertical", 76))
sketch1.addConstraint(Sketcher.Constraint("Vertical", 78))
sketch1.addConstraint(Sketcher.Constraint("Coincident", 80, 3, -1, 1))
sketch1.addConstraint(Sketcher.Constraint("Equal", 1, 3))
sketch1.addConstraint(Sketcher.Constraint("Equal", 3, 5))
sketch1.addConstraint(Sketcher.Constraint("Equal", 11, 13))
sketch1.addConstraint(Sketcher.Constraint("Equal", 9, 15))
sketch1.addConstraint(Sketcher.Constraint("Equal", 7, 17))
sketch1.addConstraint(Sketcher.Constraint("Equal", 5, 19))
sketch1.addConstraint(Sketcher.Constraint("Equal", 19, 21))
sketch1.addConstraint(Sketcher.Constraint("Equal", 2, 22))
sketch1.addConstraint(Sketcher.Constraint("Equal", 21, 23))
sketch1.addConstraint(Sketcher.Constraint("Equal", 23, 25))
sketch1.addConstraint(Sketcher.Constraint("Equal", 17, 27))
sketch1.addConstraint(Sketcher.Constraint("Equal", 15, 29))
sketch1.addConstraint(Sketcher.Constraint("Equal", 13, 31))
sketch1.addConstraint(Sketcher.Constraint("Equal", 31, 33))
sketch1.addConstraint(Sketcher.Constraint("Equal", 29, 35))
sketch1.addConstraint(Sketcher.Constraint("Equal", 27, 37))
sketch1.addConstraint(Sketcher.Constraint("Equal", 25, 39))
sketch1.addConstraint(Sketcher.Constraint("Equal", 39, 41))
sketch1.addConstraint(Sketcher.Constraint("Equal", 22, 42))
sketch1.addConstraint(Sketcher.Constraint("Equal", 41, 43))
sketch1.addConstraint(Sketcher.Constraint("Equal", 43, 45))
sketch1.addConstraint(Sketcher.Constraint("Equal", 37, 47))
sketch1.addConstraint(Sketcher.Constraint("Equal", 35, 49))
sketch1.addConstraint(Sketcher.Constraint("Equal", 33, 51))
sketch1.addConstraint(Sketcher.Constraint("Equal", 51, 53))
sketch1.addConstraint(Sketcher.Constraint("Equal", 49, 55))
sketch1.addConstraint(Sketcher.Constraint("Equal", 47, 57))
sketch1.addConstraint(Sketcher.Constraint("Equal", 45, 59))
sketch1.addConstraint(Sketcher.Constraint("Equal", 59, 61))
sketch1.addConstraint(Sketcher.Constraint("Equal", 42, 62))
sketch1.addConstraint(Sketcher.Constraint("Equal", 61, 63))
sketch1.addConstraint(Sketcher.Constraint("Equal", 63, 65))
sketch1.addConstraint(Sketcher.Constraint("Equal", 57, 67))
sketch1.addConstraint(Sketcher.Constraint("Equal", 55, 69))
sketch1.addConstraint(Sketcher.Constraint("Equal", 53, 71))
sketch1.addConstraint(Sketcher.Constraint("Equal", 71, 73))
sketch1.addConstraint(Sketcher.Constraint("Equal", 69, 75))
sketch1.addConstraint(Sketcher.Constraint("Equal", 67, 77))
sketch1.addConstraint(Sketcher.Constraint("Equal", 65, 79))
sketch1.addConstraint(Sketcher.Constraint("Symmetric", 1, 3, 41, 3, -1, 1))
sketch1.addConstraint(Sketcher.Constraint("Symmetric", 2, 3, 42, 3, -1, 1))
sketch1.addConstraint(Sketcher.Constraint("Symmetric", 3, 3, 43, 3, -1, 1))
sketch1.addConstraint(Sketcher.Constraint("Symmetric", 5, 3, 45, 3, -1, 1))
sketch1.addConstraint(Sketcher.Constraint("Symmetric", 7, 3, 47, 3, -1, 1))
sketch1.addConstraint(Sketcher.Constraint("Symmetric", 11, 3, 51, 3, -1, 1))
sketch1.addConstraint(Sketcher.Constraint("Symmetric", 15, 3, 55, 3, -1, 1))
sketch1.addConstraint(Sketcher.Constraint("Symmetric", 19, 3, 59, 3, -1, 1))
sketch1.addConstraint(Sketcher.Constraint("Symmetric", 21, 3, 61, 3, -1, 1))
sketch1.addConstraint(Sketcher.Constraint("Symmetric", 22, 3, 62, 3, -1, 1))
sketch1.addConstraint(Sketcher.Constraint("Symmetric", 23, 3, 63, 3, -1, 1))
sketch1.addConstraint(Sketcher.Constraint("Symmetric", 25, 3, 65, 3, -1, 1))
sketch1.addConstraint(Sketcher.Constraint("Symmetric", 27, 3, 67, 3, -1, 1))
sketch1.addConstraint(Sketcher.Constraint("Symmetric", 31, 3, 71, 3, -1, 1))
sketch1.addConstraint(Sketcher.Constraint("Symmetric", 35, 3, 75, 3, -1, 1))
sketch1.addConstraint(Sketcher.Constraint("Symmetric", 39, 3, 79, 3, -1, 1))
sketch1.addConstraint(Sketcher.Constraint("Symmetric", 9, 3, 15, 3, -2))
sketch1.addConstraint(Sketcher.Constraint("Symmetric", 5, 3, 19, 3, -2))
sketch1.addConstraint(Sketcher.Constraint("Symmetric", 3, 3, 21, 3, -2))
sketch1.addConstraint(Sketcher.Constraint("Symmetric", 2, 3, 22, 3, -2))
sketch1.addConstraint(Sketcher.Constraint("Symmetric", 1, 3, 23, 3, -2))
sketch1.addConstraint(Sketcher.Constraint("Symmetric", 39, 3, 65, 3, -2))
sketch1.addConstraint(Sketcher.Constraint("Symmetric", 37, 3, 67, 3, -2))
sketch1.addConstraint(Sketcher.Constraint("Symmetric", 50, 2, 53, 1, -2))
sketch1.addConstraint(Sketcher.Constraint("Symmetric", 34, 2, 69, 1, -2))
sketch1.addConstraint(Sketcher.Constraint("Symmetric", 30, 2, 73, 1, -2))
sketch1.addConstraint(Sketcher.Constraint("Perpendicular", 10, 14))
sketch1.addConstraint(Sketcher.Constraint("Parallel", 14, 30))
sketch1.addConstraint(Sketcher.Constraint("Perpendicular", 30, 34))
sketch1.addConstraint(Sketcher.Constraint("Horizontal", 3, 3, 5, 3))
sketch1.addConstraint(Sketcher.Constraint("Horizontal", 27, 3, 77, 3))
sketch1.addConstraint(Sketcher.Constraint("Horizontal", 21, 3, 3, 1))
sketch1.addConstraint(Sketcher.Constraint("Horizontal", 4, 2, 5, 1))
sketch1.addConstraint(Sketcher.Constraint("Horizontal", 18, 2, 19, 1))
sketch1.addConstraint(Sketcher.Constraint("Horizontal", 61, 3, 43, 1))
sketch1.addConstraint(Sketcher.Constraint("Horizontal", 58, 2, 59, 1))
sketch1.addConstraint(Sketcher.Constraint("Vertical", 23, 3, 25, 3))
sketch1.addConstraint(Sketcher.Constraint("Vertical", 17, 3, 47, 3))
sketch1.addConstraint(Sketcher.Constraint("Vertical", 7, 3, 57, 3))
sketch1.addConstraint(Sketcher.Constraint("Vertical", 79, 3, 0, 2))
sketch1.addConstraint(Sketcher.Constraint("Vertical", 41, 3, 23, 1))
sketch1.addConstraint(Sketcher.Constraint("Vertical", 24, 2, 25, 1))
sketch1.addConstraint(Sketcher.Constraint("Vertical", 38, 2, 39, 1))
sketch1.addConstraint(Sketcher.Constraint("Vertical", 0, 2, 63, 1))
sketch1.addConstraint(Sketcher.Constraint("Equal", 60, 0))
sketch1.addConstraint(Sketcher.Constraint("Equal", 58, 26))
sketch1.addConstraint(Sketcher.Constraint("Equal", 56, 28))
sketch1.addConstraint(Sketcher.Constraint("Equal", 52, 32))
sketch1.addConstraint(Sketcher.Constraint("Equal", 14, 30))
sketch1.addConstraint(Sketcher.Constraint("Radius", 1, Q("0.02 in")))
sketch1.addConstraint(Sketcher.Constraint("Radius", 9, Q("0.04 in")))
sketch1.addConstraint(Sketcher.Constraint("Diameter", 80, Q("0.205 in")))
sketch1.addConstraint(Sketcher.Constraint("Radius", 2, Q("0.083 in")))
sketch1.addConstraint(Sketcher.Constraint("Radius", 11, Q("0.125 in")))
sketch1.addConstraint(Sketcher.Constraint("DistanceX", 1, 3, -1, 1, Q("0.5 in")))
sketch1.addConstraint(Sketcher.Constraint("DistanceY", 3, 3, -1, 1, Q("0.5 in")))
sketch1.addConstraint(Sketcher.Constraint("Radius", 7, Q("0.0435 in")))
sketch1.addConstraint(Sketcher.Constraint("DistanceY", 1, 3, -1, 1, Q("0.396 in")))
sketch1.addConstraint(Sketcher.Constraint("DistanceX", 2, 3, -1, 1, Q("0.417 in")))
sketch1.addConstraint(Sketcher.Constraint("DistanceY", 2, 3, -1, 1, Q("0.417 in")))
sketch1.addConstraint(Sketcher.Constraint("DistanceX", 7, 3, -1, 1, Q("0.171 in")))
sketch1.addConstraint(Sketcher.Constraint("DistanceY", 11, 3, -1, 1, Q("0.302 in")))
sketch1.addConstraint(Sketcher.Constraint("DistanceX", 4, 1, 4, 2, Q("3.217316 mm")))
sketch1.addConstraint(Sketcher.Constraint("DistanceX", 8, 2, 8, 1, Q("2.131394 mm")))
pad1 = body.newObject("PartDesign::Pad", "Pad")
pad1.Profile = sketch1
pad1.Length = Q("23.25 in")
pad1.Reversed = True

doc.recompute()
